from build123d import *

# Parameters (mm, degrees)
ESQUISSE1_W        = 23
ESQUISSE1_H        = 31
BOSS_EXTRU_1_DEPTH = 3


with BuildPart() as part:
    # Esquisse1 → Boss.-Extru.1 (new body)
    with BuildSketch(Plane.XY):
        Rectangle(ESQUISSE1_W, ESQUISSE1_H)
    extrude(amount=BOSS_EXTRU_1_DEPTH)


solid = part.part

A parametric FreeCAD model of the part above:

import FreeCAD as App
import Part
import Sketcher

doc = App.newDocument("Part")
body = doc.addObject("PartDesign::Body", "Body")

# Sketch on XY plane
sketch1 = body.newObject("Sketcher::SketchObject", "Sketch")
sketch1.AttachmentSupport = (doc.getObject("XY_Plane"), [""])
sketch1.MapMode = "FlatFace"
sketch1.addGeometry(Part.LineSegment(App.Vector(-11.5, 15.5, 0), App.Vector(-11.5, -15.5, 0)), False)
sketch1.addGeometry(Part.LineSegment(App.Vector(-11.5, -15.5, 0), App.Vector(11.5, -15.5, 0)), False)
sketch1.addGeometry(Part.LineSegment(App.Vector(11.5, -15.5, 0), App.Vector(11.5, 15.5, 0)), False)
sketch1.addGeometry(Part.LineSegment(App.Vector(11.5, 15.5, 0), App.Vector(-11.5, 15.5, 0)), False)
sketch1.addConstraint(Sketcher.Constraint("Coincident", 0, 2, 1, 1))
sketch1.addConstraint(Sketcher.Constraint("Coincident", 1, 2, 2, 1))
sketch1.addConstraint(Sketcher.Constraint("Coincident", 2, 2, 3, 1))
sketch1.addConstraint(Sketcher.Constraint("Coincident", 3, 2, 0, 1))
sketch1.addConstraint(Sketcher.Constraint("Vertical", 0))
sketch1.addConstraint(Sketcher.Constraint("Horizontal", 1))
sketch1.addConstraint(Sketcher.Constraint("Vertical", 2))
sketch1.addConstraint(Sketcher.Constraint("Horizontal", 3))
sketch1.addConstraint(Sketcher.Constraint("Symmetric", 0, 2, 2, 2, -1, 1))
sketch1.addConstraint(Sketcher.Constraint("DistanceX", 1, 1, 1, 2, 23.0))
sketch1.addConstraint(Sketcher.Constraint("DistanceY", 0, 2, 0, 1, 31.0))
pad1 = body.newObject("PartDesign::Pad", "Pad")
pad1.Profile = sketch1
pad1.Length = 3

doc.recompute()
